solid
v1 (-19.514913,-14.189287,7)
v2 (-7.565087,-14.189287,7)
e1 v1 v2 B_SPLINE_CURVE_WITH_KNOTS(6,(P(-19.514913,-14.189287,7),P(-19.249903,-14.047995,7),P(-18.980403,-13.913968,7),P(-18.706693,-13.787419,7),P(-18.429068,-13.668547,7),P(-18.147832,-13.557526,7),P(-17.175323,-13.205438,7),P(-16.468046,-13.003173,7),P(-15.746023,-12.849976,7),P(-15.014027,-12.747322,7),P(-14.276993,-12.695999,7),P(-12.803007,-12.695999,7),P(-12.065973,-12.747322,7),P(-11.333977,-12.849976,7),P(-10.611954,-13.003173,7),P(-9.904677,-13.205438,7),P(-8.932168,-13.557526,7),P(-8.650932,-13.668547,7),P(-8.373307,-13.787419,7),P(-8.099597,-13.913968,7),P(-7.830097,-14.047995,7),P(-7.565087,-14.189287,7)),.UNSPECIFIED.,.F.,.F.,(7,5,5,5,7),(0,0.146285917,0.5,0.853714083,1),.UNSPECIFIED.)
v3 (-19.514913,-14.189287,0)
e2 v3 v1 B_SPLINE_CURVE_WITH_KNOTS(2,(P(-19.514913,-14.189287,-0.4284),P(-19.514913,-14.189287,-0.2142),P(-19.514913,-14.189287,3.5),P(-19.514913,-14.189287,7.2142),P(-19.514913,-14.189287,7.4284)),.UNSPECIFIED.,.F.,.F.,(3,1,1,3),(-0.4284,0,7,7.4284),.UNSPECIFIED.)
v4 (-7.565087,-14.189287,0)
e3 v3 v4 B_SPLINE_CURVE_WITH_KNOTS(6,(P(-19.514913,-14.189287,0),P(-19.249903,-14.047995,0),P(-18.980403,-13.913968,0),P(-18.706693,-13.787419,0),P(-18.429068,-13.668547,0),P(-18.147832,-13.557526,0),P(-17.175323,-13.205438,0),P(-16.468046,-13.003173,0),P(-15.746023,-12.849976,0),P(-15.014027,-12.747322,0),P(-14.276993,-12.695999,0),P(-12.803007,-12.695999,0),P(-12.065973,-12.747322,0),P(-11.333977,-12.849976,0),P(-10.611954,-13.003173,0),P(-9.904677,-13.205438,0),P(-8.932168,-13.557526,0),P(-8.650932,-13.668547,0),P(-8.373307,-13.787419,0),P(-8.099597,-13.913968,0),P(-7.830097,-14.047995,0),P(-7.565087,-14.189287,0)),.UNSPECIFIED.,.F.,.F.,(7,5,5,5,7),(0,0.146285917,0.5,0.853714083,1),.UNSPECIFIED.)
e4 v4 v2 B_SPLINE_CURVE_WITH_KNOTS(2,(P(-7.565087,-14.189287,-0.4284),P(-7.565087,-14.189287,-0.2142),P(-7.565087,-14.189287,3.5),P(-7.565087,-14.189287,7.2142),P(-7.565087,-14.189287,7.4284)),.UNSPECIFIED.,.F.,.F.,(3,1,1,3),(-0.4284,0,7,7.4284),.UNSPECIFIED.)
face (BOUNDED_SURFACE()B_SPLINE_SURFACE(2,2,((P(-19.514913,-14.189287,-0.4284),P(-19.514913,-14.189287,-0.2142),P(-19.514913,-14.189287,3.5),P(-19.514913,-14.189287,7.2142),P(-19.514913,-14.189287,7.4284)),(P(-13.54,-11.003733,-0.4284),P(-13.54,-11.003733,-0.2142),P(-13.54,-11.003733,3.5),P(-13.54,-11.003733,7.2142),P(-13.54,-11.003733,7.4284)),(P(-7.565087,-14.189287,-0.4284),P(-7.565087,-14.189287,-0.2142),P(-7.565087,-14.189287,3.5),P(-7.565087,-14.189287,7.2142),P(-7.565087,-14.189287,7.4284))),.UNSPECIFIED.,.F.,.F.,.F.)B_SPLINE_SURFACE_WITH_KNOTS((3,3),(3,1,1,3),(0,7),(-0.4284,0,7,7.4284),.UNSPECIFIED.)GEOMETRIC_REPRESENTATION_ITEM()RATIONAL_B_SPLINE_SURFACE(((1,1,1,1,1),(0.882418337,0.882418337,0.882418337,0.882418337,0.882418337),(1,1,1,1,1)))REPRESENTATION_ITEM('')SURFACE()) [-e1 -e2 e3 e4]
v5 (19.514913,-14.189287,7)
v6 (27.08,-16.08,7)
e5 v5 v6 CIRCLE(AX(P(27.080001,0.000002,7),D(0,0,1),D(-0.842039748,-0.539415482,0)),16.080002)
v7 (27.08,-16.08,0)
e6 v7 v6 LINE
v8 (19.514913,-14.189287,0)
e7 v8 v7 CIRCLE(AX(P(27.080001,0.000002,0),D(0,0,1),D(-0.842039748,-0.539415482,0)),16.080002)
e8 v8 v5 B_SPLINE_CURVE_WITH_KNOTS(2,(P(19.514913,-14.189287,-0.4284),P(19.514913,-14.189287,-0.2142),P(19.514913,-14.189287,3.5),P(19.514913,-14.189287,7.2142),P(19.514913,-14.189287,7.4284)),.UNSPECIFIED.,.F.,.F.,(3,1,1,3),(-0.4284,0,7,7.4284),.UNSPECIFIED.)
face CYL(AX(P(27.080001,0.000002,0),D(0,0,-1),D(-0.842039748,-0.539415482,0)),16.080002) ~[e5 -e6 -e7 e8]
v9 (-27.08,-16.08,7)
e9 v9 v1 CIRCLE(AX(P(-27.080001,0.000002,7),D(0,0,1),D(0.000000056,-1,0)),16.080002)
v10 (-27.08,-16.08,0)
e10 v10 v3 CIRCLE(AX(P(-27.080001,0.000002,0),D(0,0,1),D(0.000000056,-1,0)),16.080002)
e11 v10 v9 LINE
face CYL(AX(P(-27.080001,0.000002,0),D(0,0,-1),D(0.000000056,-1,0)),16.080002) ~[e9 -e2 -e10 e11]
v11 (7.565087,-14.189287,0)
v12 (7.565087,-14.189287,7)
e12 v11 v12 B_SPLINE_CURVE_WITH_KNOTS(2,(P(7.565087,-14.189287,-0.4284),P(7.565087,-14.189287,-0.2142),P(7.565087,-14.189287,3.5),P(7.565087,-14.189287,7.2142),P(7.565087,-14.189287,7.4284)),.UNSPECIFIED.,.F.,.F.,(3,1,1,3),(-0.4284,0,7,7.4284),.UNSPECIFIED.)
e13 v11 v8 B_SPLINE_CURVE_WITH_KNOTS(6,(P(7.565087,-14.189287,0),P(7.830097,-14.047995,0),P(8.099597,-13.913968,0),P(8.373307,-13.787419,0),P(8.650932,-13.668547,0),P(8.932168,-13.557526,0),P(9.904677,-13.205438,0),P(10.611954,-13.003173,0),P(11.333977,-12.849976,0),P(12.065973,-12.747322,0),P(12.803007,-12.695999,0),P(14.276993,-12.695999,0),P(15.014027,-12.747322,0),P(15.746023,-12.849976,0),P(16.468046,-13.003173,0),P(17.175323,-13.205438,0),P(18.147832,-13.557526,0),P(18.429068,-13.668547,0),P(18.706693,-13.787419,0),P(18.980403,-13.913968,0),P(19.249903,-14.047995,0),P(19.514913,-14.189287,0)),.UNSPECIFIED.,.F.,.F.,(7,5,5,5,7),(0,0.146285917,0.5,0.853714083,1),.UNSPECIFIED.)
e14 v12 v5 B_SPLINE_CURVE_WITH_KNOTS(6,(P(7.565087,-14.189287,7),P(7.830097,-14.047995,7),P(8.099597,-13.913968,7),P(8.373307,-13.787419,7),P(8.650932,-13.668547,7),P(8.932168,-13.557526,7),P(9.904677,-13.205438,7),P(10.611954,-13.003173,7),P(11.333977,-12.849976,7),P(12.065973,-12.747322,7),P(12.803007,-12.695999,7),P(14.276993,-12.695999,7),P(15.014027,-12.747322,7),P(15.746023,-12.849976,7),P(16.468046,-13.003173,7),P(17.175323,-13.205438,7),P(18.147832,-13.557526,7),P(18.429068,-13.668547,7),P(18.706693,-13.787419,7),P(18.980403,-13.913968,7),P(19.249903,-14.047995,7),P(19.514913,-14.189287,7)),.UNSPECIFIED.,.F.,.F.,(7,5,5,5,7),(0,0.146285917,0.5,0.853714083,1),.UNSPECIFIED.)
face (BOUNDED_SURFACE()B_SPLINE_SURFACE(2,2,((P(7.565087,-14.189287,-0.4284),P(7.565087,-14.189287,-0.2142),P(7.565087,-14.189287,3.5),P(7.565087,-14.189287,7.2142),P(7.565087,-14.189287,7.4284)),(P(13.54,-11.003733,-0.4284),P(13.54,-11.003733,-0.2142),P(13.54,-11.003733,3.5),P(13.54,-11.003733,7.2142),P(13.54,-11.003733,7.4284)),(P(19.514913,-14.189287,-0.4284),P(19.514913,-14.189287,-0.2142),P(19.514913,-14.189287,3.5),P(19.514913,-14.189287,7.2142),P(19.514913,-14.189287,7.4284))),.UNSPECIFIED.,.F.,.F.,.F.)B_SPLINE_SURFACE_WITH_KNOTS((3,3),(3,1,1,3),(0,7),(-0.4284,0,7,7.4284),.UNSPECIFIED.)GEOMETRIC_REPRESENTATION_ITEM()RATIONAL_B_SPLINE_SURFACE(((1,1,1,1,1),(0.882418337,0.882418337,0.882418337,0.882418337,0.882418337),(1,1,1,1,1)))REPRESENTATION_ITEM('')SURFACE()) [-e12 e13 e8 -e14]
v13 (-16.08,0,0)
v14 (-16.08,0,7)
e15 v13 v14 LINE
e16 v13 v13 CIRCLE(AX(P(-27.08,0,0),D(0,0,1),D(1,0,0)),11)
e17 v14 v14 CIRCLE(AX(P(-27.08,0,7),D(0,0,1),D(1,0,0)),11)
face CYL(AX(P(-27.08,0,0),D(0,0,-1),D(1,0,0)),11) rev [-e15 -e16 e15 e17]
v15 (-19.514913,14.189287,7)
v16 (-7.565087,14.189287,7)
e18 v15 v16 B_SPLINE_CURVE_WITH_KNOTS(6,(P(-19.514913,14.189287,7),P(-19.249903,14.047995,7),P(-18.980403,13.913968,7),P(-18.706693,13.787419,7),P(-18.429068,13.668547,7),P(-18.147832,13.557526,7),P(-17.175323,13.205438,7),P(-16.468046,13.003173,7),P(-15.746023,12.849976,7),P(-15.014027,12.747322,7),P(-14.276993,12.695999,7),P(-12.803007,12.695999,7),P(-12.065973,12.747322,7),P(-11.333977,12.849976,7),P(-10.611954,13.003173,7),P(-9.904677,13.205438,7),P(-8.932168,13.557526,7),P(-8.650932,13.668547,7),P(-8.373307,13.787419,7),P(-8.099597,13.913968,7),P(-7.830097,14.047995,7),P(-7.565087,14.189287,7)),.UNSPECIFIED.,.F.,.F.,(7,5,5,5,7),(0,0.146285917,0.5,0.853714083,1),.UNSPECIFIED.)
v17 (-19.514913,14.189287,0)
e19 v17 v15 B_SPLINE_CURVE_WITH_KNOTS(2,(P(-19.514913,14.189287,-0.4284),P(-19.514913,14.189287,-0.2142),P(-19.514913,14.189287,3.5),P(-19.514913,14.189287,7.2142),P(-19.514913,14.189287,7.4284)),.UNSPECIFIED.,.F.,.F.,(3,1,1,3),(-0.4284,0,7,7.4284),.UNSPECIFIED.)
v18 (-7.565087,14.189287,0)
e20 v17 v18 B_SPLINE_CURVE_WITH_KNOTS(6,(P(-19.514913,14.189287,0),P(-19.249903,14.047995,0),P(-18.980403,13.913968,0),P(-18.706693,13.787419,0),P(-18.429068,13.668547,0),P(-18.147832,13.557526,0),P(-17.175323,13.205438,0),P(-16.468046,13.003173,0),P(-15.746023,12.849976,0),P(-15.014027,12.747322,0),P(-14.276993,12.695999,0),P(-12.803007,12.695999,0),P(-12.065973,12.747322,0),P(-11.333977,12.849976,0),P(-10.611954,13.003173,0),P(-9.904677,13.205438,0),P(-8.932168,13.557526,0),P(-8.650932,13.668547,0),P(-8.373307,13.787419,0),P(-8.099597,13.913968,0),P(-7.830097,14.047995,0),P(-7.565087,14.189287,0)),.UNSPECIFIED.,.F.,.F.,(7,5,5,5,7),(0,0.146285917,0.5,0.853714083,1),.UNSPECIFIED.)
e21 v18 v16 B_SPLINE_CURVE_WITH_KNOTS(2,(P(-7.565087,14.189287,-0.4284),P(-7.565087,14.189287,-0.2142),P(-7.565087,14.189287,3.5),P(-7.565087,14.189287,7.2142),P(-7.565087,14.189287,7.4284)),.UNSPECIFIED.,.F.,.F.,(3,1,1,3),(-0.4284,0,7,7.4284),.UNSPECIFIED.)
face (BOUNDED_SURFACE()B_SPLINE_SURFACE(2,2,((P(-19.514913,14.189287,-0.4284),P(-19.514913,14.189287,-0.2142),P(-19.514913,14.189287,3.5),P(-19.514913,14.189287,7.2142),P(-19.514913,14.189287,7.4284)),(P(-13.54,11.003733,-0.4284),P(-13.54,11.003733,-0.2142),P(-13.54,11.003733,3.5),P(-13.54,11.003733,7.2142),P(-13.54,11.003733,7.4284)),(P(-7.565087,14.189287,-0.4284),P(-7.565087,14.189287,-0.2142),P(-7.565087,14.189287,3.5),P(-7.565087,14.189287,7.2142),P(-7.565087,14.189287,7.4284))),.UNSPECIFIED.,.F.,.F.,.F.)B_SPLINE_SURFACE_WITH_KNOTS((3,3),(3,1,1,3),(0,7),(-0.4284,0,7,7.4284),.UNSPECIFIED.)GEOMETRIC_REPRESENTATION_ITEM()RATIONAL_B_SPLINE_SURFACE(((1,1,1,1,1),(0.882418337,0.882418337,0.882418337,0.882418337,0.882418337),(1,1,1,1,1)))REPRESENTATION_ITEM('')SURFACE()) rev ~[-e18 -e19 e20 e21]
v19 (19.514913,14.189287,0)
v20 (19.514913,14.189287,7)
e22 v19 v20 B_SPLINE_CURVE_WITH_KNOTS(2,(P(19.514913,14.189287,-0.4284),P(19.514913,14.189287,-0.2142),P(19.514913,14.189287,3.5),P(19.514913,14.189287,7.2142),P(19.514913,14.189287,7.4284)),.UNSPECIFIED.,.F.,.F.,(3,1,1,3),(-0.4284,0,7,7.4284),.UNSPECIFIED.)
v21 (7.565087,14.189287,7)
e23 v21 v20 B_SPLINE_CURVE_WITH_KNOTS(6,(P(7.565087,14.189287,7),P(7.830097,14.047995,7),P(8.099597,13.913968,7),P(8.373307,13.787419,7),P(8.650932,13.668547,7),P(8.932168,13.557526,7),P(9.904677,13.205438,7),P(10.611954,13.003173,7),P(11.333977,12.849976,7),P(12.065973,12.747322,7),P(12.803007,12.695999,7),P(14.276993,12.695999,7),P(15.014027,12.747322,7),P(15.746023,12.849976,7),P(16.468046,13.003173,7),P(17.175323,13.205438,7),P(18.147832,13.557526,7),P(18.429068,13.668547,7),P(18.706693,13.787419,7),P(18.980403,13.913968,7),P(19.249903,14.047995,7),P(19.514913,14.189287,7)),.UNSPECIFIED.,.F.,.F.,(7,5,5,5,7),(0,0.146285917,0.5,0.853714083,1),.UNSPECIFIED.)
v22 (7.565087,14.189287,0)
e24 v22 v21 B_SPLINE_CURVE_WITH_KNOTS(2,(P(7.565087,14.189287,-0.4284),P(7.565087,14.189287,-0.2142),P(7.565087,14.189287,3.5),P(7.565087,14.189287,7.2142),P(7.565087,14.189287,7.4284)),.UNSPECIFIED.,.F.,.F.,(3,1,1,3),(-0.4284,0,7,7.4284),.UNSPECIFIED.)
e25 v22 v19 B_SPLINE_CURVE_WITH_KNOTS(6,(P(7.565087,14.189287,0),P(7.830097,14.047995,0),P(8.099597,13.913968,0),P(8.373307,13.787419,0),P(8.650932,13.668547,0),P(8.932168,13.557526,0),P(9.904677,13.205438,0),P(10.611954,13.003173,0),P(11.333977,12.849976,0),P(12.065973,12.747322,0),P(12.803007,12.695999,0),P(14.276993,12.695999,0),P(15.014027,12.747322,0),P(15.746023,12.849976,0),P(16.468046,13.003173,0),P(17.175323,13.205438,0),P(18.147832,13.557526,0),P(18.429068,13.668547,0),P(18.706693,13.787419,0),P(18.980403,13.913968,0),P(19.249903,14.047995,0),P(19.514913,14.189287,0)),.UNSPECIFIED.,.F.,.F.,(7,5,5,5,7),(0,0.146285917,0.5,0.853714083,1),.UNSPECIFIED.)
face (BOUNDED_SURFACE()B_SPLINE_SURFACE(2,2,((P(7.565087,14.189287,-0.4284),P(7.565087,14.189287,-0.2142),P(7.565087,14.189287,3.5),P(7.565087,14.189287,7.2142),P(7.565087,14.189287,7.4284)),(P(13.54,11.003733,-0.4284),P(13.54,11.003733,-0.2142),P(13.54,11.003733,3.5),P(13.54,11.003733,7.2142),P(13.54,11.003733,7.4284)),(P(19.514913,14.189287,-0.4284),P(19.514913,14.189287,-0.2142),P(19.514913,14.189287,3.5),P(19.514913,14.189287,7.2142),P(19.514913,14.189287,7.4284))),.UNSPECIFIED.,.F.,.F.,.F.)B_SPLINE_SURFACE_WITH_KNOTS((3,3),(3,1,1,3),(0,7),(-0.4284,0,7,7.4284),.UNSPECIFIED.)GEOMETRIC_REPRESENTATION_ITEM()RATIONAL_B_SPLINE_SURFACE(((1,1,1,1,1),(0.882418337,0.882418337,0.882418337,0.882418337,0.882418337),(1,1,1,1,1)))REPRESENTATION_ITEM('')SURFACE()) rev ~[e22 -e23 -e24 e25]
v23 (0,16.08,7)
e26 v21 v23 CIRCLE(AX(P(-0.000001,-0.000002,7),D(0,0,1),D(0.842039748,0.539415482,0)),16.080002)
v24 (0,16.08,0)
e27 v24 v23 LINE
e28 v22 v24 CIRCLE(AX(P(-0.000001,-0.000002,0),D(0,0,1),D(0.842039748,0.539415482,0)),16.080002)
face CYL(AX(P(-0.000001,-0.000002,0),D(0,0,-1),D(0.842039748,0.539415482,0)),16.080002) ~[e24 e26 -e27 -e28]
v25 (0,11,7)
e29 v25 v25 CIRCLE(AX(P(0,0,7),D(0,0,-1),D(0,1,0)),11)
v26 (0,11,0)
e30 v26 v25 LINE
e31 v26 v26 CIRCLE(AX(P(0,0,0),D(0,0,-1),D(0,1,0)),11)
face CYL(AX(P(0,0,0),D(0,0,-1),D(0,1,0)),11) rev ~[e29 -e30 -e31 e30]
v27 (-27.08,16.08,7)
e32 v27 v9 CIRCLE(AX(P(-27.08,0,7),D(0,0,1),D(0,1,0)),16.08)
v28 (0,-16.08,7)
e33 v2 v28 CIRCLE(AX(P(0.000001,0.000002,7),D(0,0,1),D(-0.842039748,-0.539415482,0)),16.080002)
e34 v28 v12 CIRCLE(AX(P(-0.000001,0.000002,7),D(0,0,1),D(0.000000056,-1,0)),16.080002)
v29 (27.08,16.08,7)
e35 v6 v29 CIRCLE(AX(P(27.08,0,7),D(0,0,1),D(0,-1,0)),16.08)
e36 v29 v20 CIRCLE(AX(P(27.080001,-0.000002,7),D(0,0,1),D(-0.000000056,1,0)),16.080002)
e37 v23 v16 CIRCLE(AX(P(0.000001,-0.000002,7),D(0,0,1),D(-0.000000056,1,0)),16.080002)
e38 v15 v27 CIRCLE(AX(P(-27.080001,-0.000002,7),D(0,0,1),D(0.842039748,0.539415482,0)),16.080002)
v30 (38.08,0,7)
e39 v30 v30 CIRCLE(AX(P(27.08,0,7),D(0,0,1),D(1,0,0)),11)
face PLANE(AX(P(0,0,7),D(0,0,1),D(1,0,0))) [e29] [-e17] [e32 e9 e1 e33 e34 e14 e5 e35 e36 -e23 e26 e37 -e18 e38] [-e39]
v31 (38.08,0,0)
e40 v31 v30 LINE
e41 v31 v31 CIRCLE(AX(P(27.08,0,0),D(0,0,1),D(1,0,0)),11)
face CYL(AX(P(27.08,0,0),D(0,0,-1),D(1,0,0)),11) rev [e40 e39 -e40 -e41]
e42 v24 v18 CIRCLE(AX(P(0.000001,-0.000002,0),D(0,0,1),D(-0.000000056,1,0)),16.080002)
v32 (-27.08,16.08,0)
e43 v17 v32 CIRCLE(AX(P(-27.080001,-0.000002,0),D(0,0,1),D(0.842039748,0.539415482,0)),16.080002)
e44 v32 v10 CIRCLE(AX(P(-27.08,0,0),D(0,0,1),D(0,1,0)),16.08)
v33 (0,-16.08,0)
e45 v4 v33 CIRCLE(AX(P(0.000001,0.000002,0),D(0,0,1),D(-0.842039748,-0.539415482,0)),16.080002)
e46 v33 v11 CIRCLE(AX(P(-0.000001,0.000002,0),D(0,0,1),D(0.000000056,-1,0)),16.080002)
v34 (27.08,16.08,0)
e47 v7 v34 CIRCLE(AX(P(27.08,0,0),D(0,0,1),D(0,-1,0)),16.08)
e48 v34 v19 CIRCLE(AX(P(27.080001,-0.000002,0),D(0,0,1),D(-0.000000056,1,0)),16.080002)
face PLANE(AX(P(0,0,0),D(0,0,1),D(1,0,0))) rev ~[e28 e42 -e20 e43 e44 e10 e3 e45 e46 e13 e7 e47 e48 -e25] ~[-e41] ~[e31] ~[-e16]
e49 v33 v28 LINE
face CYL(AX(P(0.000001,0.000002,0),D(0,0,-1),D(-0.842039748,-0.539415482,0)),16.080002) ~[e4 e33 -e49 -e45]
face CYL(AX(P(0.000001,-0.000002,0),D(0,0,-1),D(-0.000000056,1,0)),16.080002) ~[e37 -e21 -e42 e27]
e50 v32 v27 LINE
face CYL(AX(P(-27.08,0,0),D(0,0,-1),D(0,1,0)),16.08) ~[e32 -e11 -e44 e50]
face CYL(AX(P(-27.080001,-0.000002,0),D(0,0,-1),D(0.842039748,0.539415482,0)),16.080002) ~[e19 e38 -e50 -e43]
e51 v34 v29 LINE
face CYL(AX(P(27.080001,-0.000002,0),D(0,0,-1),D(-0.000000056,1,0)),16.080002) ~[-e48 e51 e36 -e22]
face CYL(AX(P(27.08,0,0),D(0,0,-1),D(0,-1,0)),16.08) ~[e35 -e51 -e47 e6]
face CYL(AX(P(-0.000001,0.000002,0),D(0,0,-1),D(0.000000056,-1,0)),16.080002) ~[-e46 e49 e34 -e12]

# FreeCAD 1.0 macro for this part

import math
import FreeCAD as App
import Part
import Sketcher
from FreeCAD import Vector


def edges_at(feature, points):
    """Names of the edges that pass closest to the given points."""
    edges = feature.Shape.Edges
    near = lambda p: min(range(len(edges)), key=lambda i: edges[i].distToShape(Part.Vertex(*p))[0])
    return sorted({f"Edge{near(p) + 1}" for p in points})

doc = App.newDocument("Part")
body = doc.addObject("PartDesign::Body", "Body")

# Sketch on XY plane
sketch1 = doc.addObject("Sketcher::SketchObject", "Sketch")
body.addObject(sketch1)
sketch1.AttachmentSupport = (doc.XY_Plane, [""])
sketch1.MapMode = "FlatFace"
sketch1.addGeometry([
    Part.ArcOfCircle(Part.Circle(Vector(-27.08, 0, 0), Vector(0, 0, 1), 16.08), math.radians(90), math.radians(270)),  # 0
    Part.ArcOfCircle(Part.Circle(Vector(-27.080001, 0.000002, 0), Vector(0, 0, 1), 16.080002), math.radians(-89.999997), math.radians(-32.643857)),  # 1
    Part.ArcOfCircle(Part.Circle(Vector(0.000001, 0.000002, 0), Vector(0, 0, 1), 16.080002), math.radians(-147.356143), math.radians(-90.000003)),  # 2
    Part.ArcOfCircle(Part.Circle(Vector(-0.000001, 0.000002, 0), Vector(0, 0, 1), 16.080002), math.radians(-89.999997), math.radians(-32.643857)),  # 3
    Part.ArcOfCircle(Part.Circle(Vector(27.080001, 0.000002, 0), Vector(0, 0, 1), 16.080002), math.radians(-147.356143), math.radians(-90.000003)),  # 4
    Part.ArcOfCircle(Part.Circle(Vector(27.08, 0, 0), Vector(0, 0, 1), 16.08), math.radians(-90), math.radians(90)),  # 5
    Part.ArcOfCircle(Part.Circle(Vector(27.080001, -0.000002, 0), Vector(0, 0, 1), 16.080002), math.radians(90.000003), math.radians(147.356143)),  # 6
    Part.ArcOfCircle(Part.Circle(Vector(-0.000001, -0.000002, 0), Vector(0, 0, 1), 16.080002), math.radians(32.643857), math.radians(89.999997)),  # 7
    Part.ArcOfCircle(Part.Circle(Vector(0.000001, -0.000002, 0), Vector(0, 0, 1), 16.080002), math.radians(90.000003), math.radians(147.356143)),  # 8
    Part.ArcOfCircle(Part.Circle(Vector(-27.080001, -0.000002, 0), Vector(0, 0, 1), 16.080002), math.radians(32.643857), math.radians(89.999997)),  # 9
    Part.Circle(Vector(-27.08, 0, 0), Vector(0, 0, 1), 11),  # 10
    Part.Circle(Vector(0, 0, 0), Vector(0, 0, 1), 11),  # 11
    Part.Circle(Vector(27.08, 0, 0), Vector(0, 0, 1), 11),  # 12
], False)
sketch1.addConstraint([
    Sketcher.Constraint("Tangent", 0, 2, 1, 1),
    Sketcher.Constraint("Coincident", 1, 2, 2, 1),
    Sketcher.Constraint("Tangent", 2, 2, 3, 1),
    Sketcher.Constraint("Coincident", 3, 2, 4, 1),
    Sketcher.Constraint("Tangent", 4, 2, 5, 1),
    Sketcher.Constraint("Tangent", 5, 2, 6, 1),
    Sketcher.Constraint("Coincident", 6, 2, 7, 1),
    Sketcher.Constraint("Tangent", 7, 2, 8, 1),
    Sketcher.Constraint("Coincident", 8, 2, 9, 1),
    Sketcher.Constraint("Tangent", 9, 2, 0, 1),
    Sketcher.Constraint("Coincident", 2, 3, -1, 1),
    Sketcher.Constraint("Coincident", 7, 3, -1, 1),
    Sketcher.Constraint("Coincident", 11, 3, -1, 1),
    Sketcher.Constraint("Coincident", 10, 3, 0, 3),
    Sketcher.Constraint("Coincident", 12, 3, 4, 3),
    Sketcher.Constraint("Equal", 1, 2),
    Sketcher.Constraint("Equal", 2, 3),
    Sketcher.Constraint("Equal", 3, 4),
    Sketcher.Constraint("Equal", 0, 5),
    Sketcher.Constraint("Equal", 4, 6),
    Sketcher.Constraint("Equal", 6, 7),
    Sketcher.Constraint("Equal", 7, 8),
    Sketcher.Constraint("Equal", 8, 9),
    Sketcher.Constraint("Equal", 10, 11),
    Sketcher.Constraint("Equal", 11, 12),
    Sketcher.Constraint("Symmetric", 0, 3, 4, 3, -1, 1),
    Sketcher.Constraint("Symmetric", 0, 2, 5, 2, -1, 1),
    Sketcher.Constraint("Symmetric", 0, 2, 4, 2, -2),
    Sketcher.Constraint("PointOnObject", 2, 2, -2),
    Sketcher.Constraint("PointOnObject", 7, 2, -2),
    Sketcher.Constraint("Vertical", 10, 3, 0, 2),
    Sketcher.Constraint("Vertical", 0, 2, 9, 2),
    Sketcher.Constraint("Diameter", 10, 22.0),
    Sketcher.Constraint("Radius", 0, 16.08),
    Sketcher.Constraint("DistanceX", 0, 3, -1, 1, 27.08),
])
pad1 = doc.addObject("PartDesign::Pad", "Pad")
body.addObject(pad1)
pad1.Profile = sketch1
pad1.Length = 7
doc.recompute()

fillet = doc.addObject("PartDesign::Fillet", "Fillet")
body.addObject(fillet)
fillet.Base = (pad1, edges_at(pad1, [
    (-13.54, -8.674, 3.5),
    (13.54, -8.674, 3.5),
    (-13.54, 8.674, 3.5),
    (13.54, 8.674, 3.5),
]))
fillet.Radius = 12.7

doc.recompute()
